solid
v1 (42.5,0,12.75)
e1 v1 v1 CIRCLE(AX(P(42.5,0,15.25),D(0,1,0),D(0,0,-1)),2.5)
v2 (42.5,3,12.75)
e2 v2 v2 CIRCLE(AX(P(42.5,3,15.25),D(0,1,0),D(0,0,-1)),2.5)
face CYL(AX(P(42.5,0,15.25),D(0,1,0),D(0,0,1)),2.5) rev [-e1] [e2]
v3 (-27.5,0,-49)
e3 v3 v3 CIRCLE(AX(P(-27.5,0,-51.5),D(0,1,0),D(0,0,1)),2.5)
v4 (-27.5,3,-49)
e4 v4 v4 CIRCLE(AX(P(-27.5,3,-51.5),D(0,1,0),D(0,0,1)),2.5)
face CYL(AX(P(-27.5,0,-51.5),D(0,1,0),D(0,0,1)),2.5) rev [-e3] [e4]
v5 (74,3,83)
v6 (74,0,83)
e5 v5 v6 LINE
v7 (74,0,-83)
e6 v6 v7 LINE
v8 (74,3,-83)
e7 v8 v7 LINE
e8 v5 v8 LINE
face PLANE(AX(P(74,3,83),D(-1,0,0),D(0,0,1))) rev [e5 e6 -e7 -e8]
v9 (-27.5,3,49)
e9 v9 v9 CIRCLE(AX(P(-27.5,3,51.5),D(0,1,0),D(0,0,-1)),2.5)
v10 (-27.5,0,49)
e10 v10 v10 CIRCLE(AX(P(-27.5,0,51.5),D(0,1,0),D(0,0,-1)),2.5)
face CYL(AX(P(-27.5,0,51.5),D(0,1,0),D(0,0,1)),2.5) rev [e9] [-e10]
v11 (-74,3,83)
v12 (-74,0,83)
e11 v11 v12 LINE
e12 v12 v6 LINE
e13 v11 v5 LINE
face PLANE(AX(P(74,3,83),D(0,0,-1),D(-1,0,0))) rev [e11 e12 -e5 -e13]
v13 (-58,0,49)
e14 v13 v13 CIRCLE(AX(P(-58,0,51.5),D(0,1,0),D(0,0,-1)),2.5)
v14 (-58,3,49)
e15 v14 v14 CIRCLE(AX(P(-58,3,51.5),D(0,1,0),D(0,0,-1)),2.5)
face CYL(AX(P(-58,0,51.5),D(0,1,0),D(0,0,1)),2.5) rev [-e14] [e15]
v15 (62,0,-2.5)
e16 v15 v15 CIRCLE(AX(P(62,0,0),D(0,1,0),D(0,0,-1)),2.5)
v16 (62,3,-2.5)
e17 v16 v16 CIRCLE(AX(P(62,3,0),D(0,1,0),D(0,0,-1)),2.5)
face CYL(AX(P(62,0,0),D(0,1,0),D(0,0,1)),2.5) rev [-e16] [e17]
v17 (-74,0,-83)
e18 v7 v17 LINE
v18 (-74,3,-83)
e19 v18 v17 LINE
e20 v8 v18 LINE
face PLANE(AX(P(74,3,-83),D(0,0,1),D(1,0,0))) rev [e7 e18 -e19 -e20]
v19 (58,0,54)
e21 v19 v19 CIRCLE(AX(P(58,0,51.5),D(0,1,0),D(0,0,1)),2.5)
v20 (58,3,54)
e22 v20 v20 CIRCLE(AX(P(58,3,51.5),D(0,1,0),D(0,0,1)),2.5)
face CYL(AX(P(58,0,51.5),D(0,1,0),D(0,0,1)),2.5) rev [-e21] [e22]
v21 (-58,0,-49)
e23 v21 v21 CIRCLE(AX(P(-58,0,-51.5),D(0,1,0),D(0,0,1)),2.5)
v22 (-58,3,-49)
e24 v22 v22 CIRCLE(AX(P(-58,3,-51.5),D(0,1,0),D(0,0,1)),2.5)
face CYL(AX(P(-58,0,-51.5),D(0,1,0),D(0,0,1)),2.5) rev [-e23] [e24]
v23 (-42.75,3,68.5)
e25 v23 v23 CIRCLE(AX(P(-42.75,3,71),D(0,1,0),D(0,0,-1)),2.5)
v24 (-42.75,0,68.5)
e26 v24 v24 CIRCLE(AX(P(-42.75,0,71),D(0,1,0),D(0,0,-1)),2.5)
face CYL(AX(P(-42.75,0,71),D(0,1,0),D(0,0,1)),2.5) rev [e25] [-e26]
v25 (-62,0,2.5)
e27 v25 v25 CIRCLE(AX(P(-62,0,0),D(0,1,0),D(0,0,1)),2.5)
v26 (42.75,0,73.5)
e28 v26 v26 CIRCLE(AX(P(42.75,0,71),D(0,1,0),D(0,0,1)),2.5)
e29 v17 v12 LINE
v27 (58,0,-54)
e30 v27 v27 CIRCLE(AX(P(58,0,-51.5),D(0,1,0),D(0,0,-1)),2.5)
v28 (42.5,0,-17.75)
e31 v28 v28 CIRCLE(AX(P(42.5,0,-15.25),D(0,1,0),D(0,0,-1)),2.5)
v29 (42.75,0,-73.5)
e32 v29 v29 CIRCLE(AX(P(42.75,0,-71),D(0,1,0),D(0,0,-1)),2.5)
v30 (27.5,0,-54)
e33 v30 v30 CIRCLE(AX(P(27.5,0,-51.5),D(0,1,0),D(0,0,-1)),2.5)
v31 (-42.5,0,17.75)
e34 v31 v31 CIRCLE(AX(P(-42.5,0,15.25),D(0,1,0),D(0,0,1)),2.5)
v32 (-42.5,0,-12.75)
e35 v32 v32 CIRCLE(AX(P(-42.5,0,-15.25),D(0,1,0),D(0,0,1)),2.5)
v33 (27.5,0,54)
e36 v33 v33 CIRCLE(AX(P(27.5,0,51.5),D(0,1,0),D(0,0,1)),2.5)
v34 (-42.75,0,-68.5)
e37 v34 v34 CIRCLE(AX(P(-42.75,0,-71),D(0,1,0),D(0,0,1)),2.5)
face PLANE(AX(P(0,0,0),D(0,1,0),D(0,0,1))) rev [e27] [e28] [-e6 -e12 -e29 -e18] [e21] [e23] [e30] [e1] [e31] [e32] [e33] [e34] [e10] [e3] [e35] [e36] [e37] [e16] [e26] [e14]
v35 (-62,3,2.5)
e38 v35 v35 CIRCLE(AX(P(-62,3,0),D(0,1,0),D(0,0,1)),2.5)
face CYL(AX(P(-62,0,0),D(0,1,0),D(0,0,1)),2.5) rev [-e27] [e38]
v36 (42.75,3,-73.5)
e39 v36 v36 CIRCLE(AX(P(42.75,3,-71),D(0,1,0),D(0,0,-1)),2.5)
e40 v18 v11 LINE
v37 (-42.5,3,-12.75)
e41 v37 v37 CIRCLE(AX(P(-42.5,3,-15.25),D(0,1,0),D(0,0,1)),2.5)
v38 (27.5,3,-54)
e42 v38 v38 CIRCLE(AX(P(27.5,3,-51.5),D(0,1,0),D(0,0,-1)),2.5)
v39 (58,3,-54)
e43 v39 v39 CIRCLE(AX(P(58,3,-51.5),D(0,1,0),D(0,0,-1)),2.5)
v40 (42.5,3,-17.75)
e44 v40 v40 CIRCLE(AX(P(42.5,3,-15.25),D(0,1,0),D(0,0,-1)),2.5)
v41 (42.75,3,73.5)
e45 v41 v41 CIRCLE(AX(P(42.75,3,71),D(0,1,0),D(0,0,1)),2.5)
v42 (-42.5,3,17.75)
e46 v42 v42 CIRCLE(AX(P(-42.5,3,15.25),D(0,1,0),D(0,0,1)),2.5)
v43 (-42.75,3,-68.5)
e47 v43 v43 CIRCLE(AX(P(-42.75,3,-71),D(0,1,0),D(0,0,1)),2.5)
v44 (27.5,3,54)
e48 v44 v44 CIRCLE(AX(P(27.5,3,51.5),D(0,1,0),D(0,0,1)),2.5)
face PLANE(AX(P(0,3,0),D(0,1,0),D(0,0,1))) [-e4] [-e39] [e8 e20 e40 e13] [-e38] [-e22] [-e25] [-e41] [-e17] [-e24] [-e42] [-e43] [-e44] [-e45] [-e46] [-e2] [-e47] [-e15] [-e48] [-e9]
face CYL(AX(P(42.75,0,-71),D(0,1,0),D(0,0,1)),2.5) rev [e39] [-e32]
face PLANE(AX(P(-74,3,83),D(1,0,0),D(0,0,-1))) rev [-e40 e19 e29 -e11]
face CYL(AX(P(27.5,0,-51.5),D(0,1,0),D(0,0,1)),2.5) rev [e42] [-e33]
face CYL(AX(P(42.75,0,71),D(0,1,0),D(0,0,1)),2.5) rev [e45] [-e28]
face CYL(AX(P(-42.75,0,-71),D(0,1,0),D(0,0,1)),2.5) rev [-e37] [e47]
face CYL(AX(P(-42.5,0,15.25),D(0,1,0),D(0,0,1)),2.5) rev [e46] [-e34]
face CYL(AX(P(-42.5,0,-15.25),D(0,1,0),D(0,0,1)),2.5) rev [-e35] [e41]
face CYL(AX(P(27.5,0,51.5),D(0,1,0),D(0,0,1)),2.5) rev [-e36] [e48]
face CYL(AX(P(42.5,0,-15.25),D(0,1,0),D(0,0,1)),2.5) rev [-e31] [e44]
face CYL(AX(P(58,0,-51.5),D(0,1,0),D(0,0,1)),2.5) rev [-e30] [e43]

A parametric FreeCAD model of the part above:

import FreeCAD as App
import Part
import Sketcher

V = App.Vector


def add_polygon(sketch, points):
    """Adds a closed chain of lines whose ends are joined by coincident constraints."""
    first, n = sketch.GeometryCount, len(points)
    for a, b in zip(points, points[1:] + points[:1]):
        sketch.addGeometry(Part.LineSegment(App.Vector(*a, 0), App.Vector(*b, 0)), False)
    for i in range(n):
        sketch.addConstraint(Sketcher.Constraint("Coincident", first + i, 2, first + (i + 1) % n, 1))

doc = App.newDocument("Part")
body = doc.addObject("PartDesign::Body", "Body")

# Sketch on XZ plane
sketch1 = body.newObject("Sketcher::SketchObject", "Sketch")
sketch1.AttachmentSupport = (doc.getObject("XZ_Plane"), [""])
sketch1.MapMode = "FlatFace"
add_polygon(sketch1, [(-74, -83), (-74, 83), (74, 83), (74, -83)])  # lines 0-3
sketch1.addConstraint(Sketcher.Constraint("Vertical", 0))
sketch1.addConstraint(Sketcher.Constraint("Horizontal", 1))
sketch1.addConstraint(Sketcher.Constraint("Vertical", 2))
sketch1.addConstraint(Sketcher.Constraint("Horizontal", 3))
sketch1.addConstraint(Sketcher.Constraint("Symmetric", 0, 2, 2, 2, -1, 1))
sketch1.addConstraint(Sketcher.Constraint("DistanceX", 1, 1, 1, 2, 148.0))
sketch1.addConstraint(Sketcher.Constraint("DistanceY", 0, 1, 0, 2, 166.0))
pad1 = body.newObject("PartDesign::Pad", "Pad")
pad1.Profile = sketch1
pad1.Length = 3
pad1.Reversed = True

# Sketch on XZ plane
sketch2 = body.newObject("Sketcher::SketchObject", "Sketch001")
sketch2.AttachmentSupport = (doc.getObject("XZ_Plane"), [""])
sketch2.MapMode = "FlatFace"
sketch2.AttachmentOffset = App.Placement(V(0, 0, -3), App.Rotation())
sketch2.addGeometry(Part.Circle(V(-58, -51.5, 0), V(0, 0, 1), 2.5), False)
sketch2.addGeometry(Part.Circle(V(-27.5, -51.5, 0), V(0, 0, 1), 2.5), False)
sketch2.addGeometry(Part.Circle(V(-27.5, 51.5, 0), V(0, 0, 1), 2.5), False)
sketch2.addGeometry(Part.Circle(V(-58, 51.5, 0), V(0, 0, 1), 2.5), False)
sketch2.addGeometry(Part.Circle(V(58, 51.5, 0), V(0, 0, 1), 2.5), False)
sketch2.addGeometry(Part.Circle(V(27.5, 51.5, 0), V(0, 0, 1), 2.5), False)
sketch2.addGeometry(Part.Circle(V(27.5, -51.5, 0), V(0, 0, 1), 2.5), False)
sketch2.addGeometry(Part.Circle(V(58, -51.5, 0), V(0, 0, 1), 2.5), False)
sketch2.addGeometry(Part.Circle(V(-42.8, -71, 0), V(0, 0, 1), 2.5), False)
sketch2.addGeometry(Part.Circle(V(-42.8, 71, 0), V(0, 0, 1), 2.5), False)
sketch2.addGeometry(Part.Circle(V(42.8, 71, 0), V(0, 0, 1), 2.5), False)
sketch2.addGeometry(Part.Circle(V(42.8, -71, 0), V(0, 0, 1), 2.5), False)
sketch2.addGeometry(Part.Circle(V(-62, 0, 0), V(0, 0, 1), 2.5), False)
sketch2.addGeometry(Part.Circle(V(-42.5, 15.2, 0), V(0, 0, 1), 2.5), False)
sketch2.addGeometry(Part.Circle(V(-42.5, -15.2, 0), V(0, 0, 1), 2.5), False)
sketch2.addGeometry(Part.Circle(V(42.5, -15.2, 0), V(0, 0, 1), 2.5), False)
sketch2.addGeometry(Part.Circle(V(42.5, 15.2, 0), V(0, 0, 1), 2.5), False)
sketch2.addGeometry(Part.Circle(V(62, 0, 0), V(0, 0, 1), 2.5), False)
sketch2.addConstraint(Sketcher.Constraint("Equal", 0, 1))
sketch2.addConstraint(Sketcher.Constraint("Equal", 1, 2))
sketch2.addConstraint(Sketcher.Constraint("Equal", 2, 3))
sketch2.addConstraint(Sketcher.Constraint("Equal", 3, 4))
sketch2.addConstraint(Sketcher.Constraint("Equal", 4, 5))
sketch2.addConstraint(Sketcher.Constraint("Equal", 5, 6))
sketch2.addConstraint(Sketcher.Constraint("Equal", 6, 7))
sketch2.addConstraint(Sketcher.Constraint("Equal", 7, 8))
sketch2.addConstraint(Sketcher.Constraint("Equal", 8, 9))
sketch2.addConstraint(Sketcher.Constraint("Equal", 9, 10))
sketch2.addConstraint(Sketcher.Constraint("Equal", 10, 11))
sketch2.addConstraint(Sketcher.Constraint("Equal", 11, 12))
sketch2.addConstraint(Sketcher.Constraint("Equal", 12, 13))
sketch2.addConstraint(Sketcher.Constraint("Equal", 13, 14))
sketch2.addConstraint(Sketcher.Constraint("Equal", 14, 15))
sketch2.addConstraint(Sketcher.Constraint("Equal", 15, 16))
sketch2.addConstraint(Sketcher.Constraint("Equal", 16, 17))
sketch2.addConstraint(Sketcher.Constraint("Symmetric", 0, 3, 4, 3, -1, 1))
sketch2.addConstraint(Sketcher.Constraint("Symmetric", 1, 3, 5, 3, -1, 1))
sketch2.addConstraint(Sketcher.Constraint("Symmetric", 2, 3, 6, 3, -1, 1))
sketch2.addConstraint(Sketcher.Constraint("Symmetric", 3, 3, 7, 3, -1, 1))
sketch2.addConstraint(Sketcher.Constraint("Symmetric", 8, 3, 10, 3, -1, 1))
sketch2.addConstraint(Sketcher.Constraint("Symmetric", 9, 3, 11, 3, -1, 1))
sketch2.addConstraint(Sketcher.Constraint("Symmetric", 13, 3, 15, 3, -1, 1))
sketch2.addConstraint(Sketcher.Constraint("Symmetric", 14, 3, 16, 3, -1, 1))
sketch2.addConstraint(Sketcher.Constraint("Symmetric", 12, 3, 17, 3, -1, 1))
sketch2.addConstraint(Sketcher.Constraint("Symmetric", 3, 3, 4, 3, -2))
sketch2.addConstraint(Sketcher.Constraint("Symmetric", 2, 3, 5, 3, -2))
sketch2.addConstraint(Sketcher.Constraint("Symmetric", 9, 3, 10, 3, -2))
sketch2.addConstraint(Sketcher.Constraint("Symmetric", 14, 3, 15, 3, -2))
sketch2.addConstraint(Sketcher.Constraint("PointOnObject", 12, 3, -1))
sketch2.addConstraint(Sketcher.Constraint("Horizontal", 0, 3, 1, 3))
sketch2.addConstraint(Sketcher.Constraint("Diameter", 0, 5.0))
sketch2.addConstraint(Sketcher.Constraint("DistanceX", 0, 3, -1, 1, 58.0))
sketch2.addConstraint(Sketcher.Constraint("DistanceY", 8, 3, -1, 1, 71.0))
sketch2.addConstraint(Sketcher.Constraint("DistanceX", 12, 3, -1, 1, 62.0))
sketch2.addConstraint(Sketcher.Constraint("DistanceY", 1, 3, 2, 3, 103.0))
sketch2.addConstraint(Sketcher.Constraint("DistanceX", 2, 3, 5, 3, 55.0))
sketch2.addConstraint(Sketcher.Constraint("DistanceX", 13, 3, 2, 3, 15.0))
sketch2.addConstraint(Sketcher.Constraint("DistanceX", 9, 3, 10, 3, 85.5))
sketch2.addConstraint(Sketcher.Constraint("DistanceY", 14, 3, 13, 3, 30.5))
pocket1 = body.newObject("PartDesign::Pocket", "Pocket")
pocket1.Profile = sketch2
pocket1.Type = "ThroughAll"
pocket1.Reversed = True

doc.recompute()
